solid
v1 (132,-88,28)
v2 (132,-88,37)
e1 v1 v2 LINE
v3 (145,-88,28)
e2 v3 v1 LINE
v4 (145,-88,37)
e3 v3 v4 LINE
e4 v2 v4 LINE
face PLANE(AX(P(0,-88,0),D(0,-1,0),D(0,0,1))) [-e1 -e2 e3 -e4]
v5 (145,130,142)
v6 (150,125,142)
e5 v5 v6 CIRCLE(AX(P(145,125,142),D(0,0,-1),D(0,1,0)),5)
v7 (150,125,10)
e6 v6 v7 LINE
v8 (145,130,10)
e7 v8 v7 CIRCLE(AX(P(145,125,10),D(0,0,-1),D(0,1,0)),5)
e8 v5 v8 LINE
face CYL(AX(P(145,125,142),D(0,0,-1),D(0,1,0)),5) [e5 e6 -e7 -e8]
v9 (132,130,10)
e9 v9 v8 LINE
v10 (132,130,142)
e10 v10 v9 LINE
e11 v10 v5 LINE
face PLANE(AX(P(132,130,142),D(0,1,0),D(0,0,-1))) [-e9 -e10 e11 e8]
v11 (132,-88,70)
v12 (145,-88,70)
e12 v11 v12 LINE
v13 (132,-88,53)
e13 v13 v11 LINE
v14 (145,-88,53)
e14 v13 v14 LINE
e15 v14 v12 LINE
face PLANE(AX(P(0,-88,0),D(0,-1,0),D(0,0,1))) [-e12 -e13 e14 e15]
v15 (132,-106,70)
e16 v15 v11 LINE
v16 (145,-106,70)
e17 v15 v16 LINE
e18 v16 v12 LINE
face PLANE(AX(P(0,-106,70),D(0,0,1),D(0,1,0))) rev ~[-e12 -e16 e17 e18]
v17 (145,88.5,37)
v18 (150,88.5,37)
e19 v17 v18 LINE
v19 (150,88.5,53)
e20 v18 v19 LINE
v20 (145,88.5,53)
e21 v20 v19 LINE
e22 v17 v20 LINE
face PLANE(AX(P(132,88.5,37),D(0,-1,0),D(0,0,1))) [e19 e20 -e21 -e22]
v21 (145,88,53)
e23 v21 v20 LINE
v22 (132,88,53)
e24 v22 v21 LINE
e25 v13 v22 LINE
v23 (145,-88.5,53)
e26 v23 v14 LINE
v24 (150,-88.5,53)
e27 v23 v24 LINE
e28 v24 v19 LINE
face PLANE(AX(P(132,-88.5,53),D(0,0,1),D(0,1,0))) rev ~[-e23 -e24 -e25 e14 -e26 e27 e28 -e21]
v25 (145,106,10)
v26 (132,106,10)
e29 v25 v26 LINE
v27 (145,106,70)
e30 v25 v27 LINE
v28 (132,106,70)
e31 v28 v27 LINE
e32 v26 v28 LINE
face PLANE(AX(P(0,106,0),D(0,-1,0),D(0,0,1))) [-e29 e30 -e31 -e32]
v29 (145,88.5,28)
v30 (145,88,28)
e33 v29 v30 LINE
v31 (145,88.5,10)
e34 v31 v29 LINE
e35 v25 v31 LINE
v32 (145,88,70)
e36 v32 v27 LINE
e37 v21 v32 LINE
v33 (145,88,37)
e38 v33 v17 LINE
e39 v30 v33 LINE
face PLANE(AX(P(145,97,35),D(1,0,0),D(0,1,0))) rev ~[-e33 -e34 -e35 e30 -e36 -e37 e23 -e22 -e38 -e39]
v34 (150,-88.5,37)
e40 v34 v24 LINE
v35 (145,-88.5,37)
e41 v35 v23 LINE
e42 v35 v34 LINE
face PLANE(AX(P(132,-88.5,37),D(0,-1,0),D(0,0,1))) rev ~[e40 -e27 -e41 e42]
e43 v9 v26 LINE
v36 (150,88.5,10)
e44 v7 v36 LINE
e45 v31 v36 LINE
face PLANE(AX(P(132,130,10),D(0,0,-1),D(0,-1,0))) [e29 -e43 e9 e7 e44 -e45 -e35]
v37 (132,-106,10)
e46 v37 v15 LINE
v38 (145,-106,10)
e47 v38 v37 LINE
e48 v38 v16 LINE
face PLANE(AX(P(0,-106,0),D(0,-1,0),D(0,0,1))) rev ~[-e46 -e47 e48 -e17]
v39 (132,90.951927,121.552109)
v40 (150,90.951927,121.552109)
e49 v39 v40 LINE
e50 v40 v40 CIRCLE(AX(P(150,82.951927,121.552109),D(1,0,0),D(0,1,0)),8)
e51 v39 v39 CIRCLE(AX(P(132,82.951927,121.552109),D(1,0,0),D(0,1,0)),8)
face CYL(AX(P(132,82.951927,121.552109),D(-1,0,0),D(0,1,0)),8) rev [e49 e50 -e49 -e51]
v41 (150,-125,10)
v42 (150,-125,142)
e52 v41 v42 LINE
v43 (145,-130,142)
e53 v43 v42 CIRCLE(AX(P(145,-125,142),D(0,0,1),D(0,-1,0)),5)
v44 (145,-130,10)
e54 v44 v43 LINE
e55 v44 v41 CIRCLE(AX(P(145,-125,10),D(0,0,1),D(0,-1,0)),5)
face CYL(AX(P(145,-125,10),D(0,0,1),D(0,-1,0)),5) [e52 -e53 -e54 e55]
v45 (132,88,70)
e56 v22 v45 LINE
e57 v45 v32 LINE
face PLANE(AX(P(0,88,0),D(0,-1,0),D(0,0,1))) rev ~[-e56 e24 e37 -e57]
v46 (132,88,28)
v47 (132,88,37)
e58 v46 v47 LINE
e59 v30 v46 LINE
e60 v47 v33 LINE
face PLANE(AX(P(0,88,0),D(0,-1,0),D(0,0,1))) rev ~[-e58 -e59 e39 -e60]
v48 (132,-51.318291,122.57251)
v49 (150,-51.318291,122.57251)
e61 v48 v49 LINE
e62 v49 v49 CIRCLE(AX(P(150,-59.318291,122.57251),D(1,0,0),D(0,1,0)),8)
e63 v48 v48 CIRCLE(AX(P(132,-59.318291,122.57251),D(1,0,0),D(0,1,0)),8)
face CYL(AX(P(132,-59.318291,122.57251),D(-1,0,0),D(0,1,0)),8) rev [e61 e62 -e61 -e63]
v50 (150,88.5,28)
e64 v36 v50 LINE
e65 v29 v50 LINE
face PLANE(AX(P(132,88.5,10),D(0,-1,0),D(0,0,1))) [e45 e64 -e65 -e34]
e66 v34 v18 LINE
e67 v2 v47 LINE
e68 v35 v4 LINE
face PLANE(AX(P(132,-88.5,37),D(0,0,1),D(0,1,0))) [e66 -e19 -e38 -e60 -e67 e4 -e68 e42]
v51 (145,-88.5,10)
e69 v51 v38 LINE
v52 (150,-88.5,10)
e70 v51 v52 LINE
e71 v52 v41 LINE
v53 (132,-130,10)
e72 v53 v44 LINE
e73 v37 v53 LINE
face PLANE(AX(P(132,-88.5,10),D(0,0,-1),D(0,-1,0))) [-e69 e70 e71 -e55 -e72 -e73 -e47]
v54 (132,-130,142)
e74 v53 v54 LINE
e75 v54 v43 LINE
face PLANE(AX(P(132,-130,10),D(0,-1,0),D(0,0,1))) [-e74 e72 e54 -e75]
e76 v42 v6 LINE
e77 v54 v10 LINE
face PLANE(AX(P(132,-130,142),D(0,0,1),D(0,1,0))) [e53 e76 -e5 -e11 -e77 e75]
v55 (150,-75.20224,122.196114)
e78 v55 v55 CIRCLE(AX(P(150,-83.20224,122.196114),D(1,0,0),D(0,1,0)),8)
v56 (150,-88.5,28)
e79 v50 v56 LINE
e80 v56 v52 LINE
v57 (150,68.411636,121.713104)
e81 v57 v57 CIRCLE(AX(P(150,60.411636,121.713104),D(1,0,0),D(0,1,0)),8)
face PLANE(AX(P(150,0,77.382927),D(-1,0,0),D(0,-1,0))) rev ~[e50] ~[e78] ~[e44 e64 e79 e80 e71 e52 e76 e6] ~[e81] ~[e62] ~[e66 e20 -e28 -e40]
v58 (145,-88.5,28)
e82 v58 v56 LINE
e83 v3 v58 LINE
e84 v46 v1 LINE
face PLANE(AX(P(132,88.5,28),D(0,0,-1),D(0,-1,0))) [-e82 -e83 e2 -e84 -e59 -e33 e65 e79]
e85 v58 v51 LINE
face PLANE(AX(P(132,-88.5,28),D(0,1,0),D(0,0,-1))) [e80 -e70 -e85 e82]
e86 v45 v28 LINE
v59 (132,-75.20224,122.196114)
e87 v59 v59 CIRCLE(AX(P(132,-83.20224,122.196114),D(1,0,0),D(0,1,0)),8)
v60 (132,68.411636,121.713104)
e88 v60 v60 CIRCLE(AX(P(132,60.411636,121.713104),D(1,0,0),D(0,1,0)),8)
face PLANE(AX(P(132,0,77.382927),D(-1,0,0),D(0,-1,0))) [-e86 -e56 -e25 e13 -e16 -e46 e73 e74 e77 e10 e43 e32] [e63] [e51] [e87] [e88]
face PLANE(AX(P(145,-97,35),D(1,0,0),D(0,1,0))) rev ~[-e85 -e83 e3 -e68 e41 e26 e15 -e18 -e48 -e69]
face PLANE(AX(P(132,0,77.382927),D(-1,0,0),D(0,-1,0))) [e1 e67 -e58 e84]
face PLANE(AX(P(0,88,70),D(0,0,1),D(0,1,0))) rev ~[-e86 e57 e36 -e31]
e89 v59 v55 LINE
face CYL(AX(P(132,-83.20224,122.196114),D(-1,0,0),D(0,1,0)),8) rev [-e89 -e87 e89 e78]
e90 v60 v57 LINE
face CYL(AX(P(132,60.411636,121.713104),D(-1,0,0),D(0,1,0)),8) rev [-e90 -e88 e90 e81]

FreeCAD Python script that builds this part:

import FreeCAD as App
import Part
import Sketcher

V = App.Vector
Q = App.Units.Quantity


def edges_at(feature, points):
    """Names of the edges that pass closest to the given points."""
    edges = feature.Shape.Edges
    near = lambda p: min(range(len(edges)), key=lambda i: edges[i].distToShape(Part.Vertex(*p))[0])
    return sorted({f"Edge{near(p) + 1}" for p in points})


def add_polygon(sketch, points):
    """Adds a closed chain of lines whose ends are joined by coincident constraints."""
    first, n = sketch.GeometryCount, len(points)
    for a, b in zip(points, points[1:] + points[:1]):
        sketch.addGeometry(Part.LineSegment(App.Vector(*a, 0), App.Vector(*b, 0)), False)
    for i in range(n):
        sketch.addConstraint(Sketcher.Constraint("Coincident", first + i, 2, first + (i + 1) % n, 1))

doc = App.newDocument("Part")
body = doc.addObject("PartDesign::Body", "Body")

sketch1 = body.newObject("Sketcher::SketchObject", "Sketch")
sketch1.AttachmentSupport = (doc.getObject("YZ_Plane"), [""])
sketch1.MapMode = "FlatFace"
sketch1.AttachmentOffset = App.Placement(V(0, 0, 132), App.Rotation())
add_polygon(sketch1, [(-130, 142), (-130, 10), (-88, 10), (-88, 28), (88, 28), (88, 10), (130, 10), (130, 142)])
add_polygon(sketch1, [(-88, 37), (-88, 53), (88, 53), (88, 37)])
sketch1.addGeometry(Part.Circle(V(83, 122, 0), V(0, 0, 1), 8), False)
sketch1.addGeometry(Part.Circle(V(60, 122, 0), V(0, 0, 1), 8), False)
sketch1.addGeometry(Part.Circle(V(-59, 123, 0), V(0, 0, 1), 8), False)
sketch1.addGeometry(Part.Circle(V(-83, 122, 0), V(0, 0, 1), 8), False)
sketch1.addConstraint(Sketcher.Constraint("Vertical", 0))
sketch1.addConstraint(Sketcher.Constraint("Horizontal", 1))
sketch1.addConstraint(Sketcher.Constraint("Vertical", 2))
sketch1.addConstraint(Sketcher.Constraint("Horizontal", 3))
sketch1.addConstraint(Sketcher.Constraint("Vertical", 4))
sketch1.addConstraint(Sketcher.Constraint("Horizontal", 5))
sketch1.addConstraint(Sketcher.Constraint("Vertical", 6))
sketch1.addConstraint(Sketcher.Constraint("Horizontal", 7))
sketch1.addConstraint(Sketcher.Constraint("Vertical", 8))
sketch1.addConstraint(Sketcher.Constraint("Horizontal", 9))
sketch1.addConstraint(Sketcher.Constraint("Vertical", 10))
sketch1.addConstraint(Sketcher.Constraint("Horizontal", 11))
sketch1.addConstraint(Sketcher.Constraint("Equal", 12, 13))
sketch1.addConstraint(Sketcher.Constraint("Equal", 13, 14))
sketch1.addConstraint(Sketcher.Constraint("Equal", 14, 15))
sketch1.addConstraint(Sketcher.Constraint("Symmetric", 1, 2, 4, 2, -2))
sketch1.addConstraint(Sketcher.Constraint("Vertical", 2, 2, 8, 2))
sketch1.addConstraint(Sketcher.Constraint("Vertical", 4, 2, 9, 2))
sketch1.addConstraint(Sketcher.Constraint("Equal", 1, 5))
sketch1.addConstraint(Sketcher.Constraint("Diameter", 12, Q("16 mm")))
sketch1.addConstraint(Sketcher.Constraint("DistanceX", 3, 1, 3, 2, Q("177 mm")))
sketch1.addConstraint(Sketcher.Constraint("DistanceX", 7, 2, 7, 1, Q("260 mm")))
sketch1.addConstraint(Sketcher.Constraint("DistanceY", 0, 2, 0, 1, Q("132 mm")))
sketch1.addConstraint(Sketcher.Constraint("DistanceY", 2, 1, 2, 2, Q("18 mm")))
sketch1.addConstraint(Sketcher.Constraint("DistanceY", 8, 1, 8, 2, Q("16 mm")))
sketch1.addConstraint(Sketcher.Constraint("DistanceY", -1, 1, 0, 2, Q("10 mm")))
sketch1.addConstraint(Sketcher.Constraint("DistanceY", -1, 1, 8, 2, Q("53 mm")))
sketch1.addConstraint(Sketcher.Constraint("DistanceY", 12, 3, 14, 3, Q("1.020401 mm")))
sketch1.addConstraint(Sketcher.Constraint("DistanceY", -1, 1, 12, 3, Q("121.552109 mm")))
sketch1.addConstraint(Sketcher.Constraint("DistanceX", 14, 3, -1, 1, Q("59.318291 mm")))
sketch1.addConstraint(Sketcher.Constraint("DistanceX", 15, 3, -1, 1, Q("83.20224 mm")))
sketch1.addConstraint(Sketcher.Constraint("DistanceX", 13, 3, 12, 3, Q("22.540291 mm")))
sketch1.addConstraint(Sketcher.Constraint("DistanceX", 14, 3, 12, 3, Q("142.270218 mm")))
sketch1.addConstraint(Sketcher.Constraint("DistanceY", 13, 3, 15, 3, Q("0.48301 mm")))
sketch1.addConstraint(Sketcher.Constraint("DistanceY", -1, 1, 13, 3, Q("121.713104 mm")))
pad1 = body.newObject("PartDesign::Pad", "Pad")
pad1.Profile = sketch1
pad1.Length = 18
doc.recompute()

fillet = body.newObject("PartDesign::Fillet", "Fillet")
fillet.Base = (pad1, edges_at(pad1, [(150, -130, 76), (150, 130, 76)]))
fillet.Radius = 5

sketch2 = body.newObject("Sketcher::SketchObject", "Sketch001")
sketch2.AttachmentSupport = (doc.getObject("YZ_Plane"), [""])
sketch2.MapMode = "FlatFace"
add_polygon(sketch2, [(-106, 70), (-106, 0), (-88, 0), (-88, 70)])
add_polygon(sketch2, [(88, 70), (88, 0), (106, 0), (106, 70)])
sketch2.addConstraint(Sketcher.Constraint("Vertical", 0))
sketch2.addConstraint(Sketcher.Constraint("Horizontal", 1))
sketch2.addConstraint(Sketcher.Constraint("Vertical", 2))
sketch2.addConstraint(Sketcher.Constraint("Horizontal", 3))
sketch2.addConstraint(Sketcher.Constraint("Vertical", 4))
sketch2.addConstraint(Sketcher.Constraint("Horizontal", 5))
sketch2.addConstraint(Sketcher.Constraint("Vertical", 6))
sketch2.addConstraint(Sketcher.Constraint("Horizontal", 7))
sketch2.addConstraint(Sketcher.Constraint("Symmetric", 1, 2, 4, 2, -1, 1))
sketch2.addConstraint(Sketcher.Constraint("Symmetric", 0, 2, 5, 2, -2))
sketch2.addConstraint(Sketcher.Constraint("Horizontal", 3, 2, 6, 2))
sketch2.addConstraint(Sketcher.Constraint("DistanceX", 1, 1, 1, 2, Q("18 mm")))
sketch2.addConstraint(Sketcher.Constraint("DistanceY", 0, 2, 0, 1, Q("70 mm")))
sketch2.addConstraint(Sketcher.Constraint("DistanceX", 0, 2, -1, 1, Q("106 mm")))
pocket1 = body.newObject("PartDesign::Pocket", "Pocket")
pocket1.Profile = sketch2
pocket1.Length = 145
pocket1.Reversed = True

doc.recompute()
